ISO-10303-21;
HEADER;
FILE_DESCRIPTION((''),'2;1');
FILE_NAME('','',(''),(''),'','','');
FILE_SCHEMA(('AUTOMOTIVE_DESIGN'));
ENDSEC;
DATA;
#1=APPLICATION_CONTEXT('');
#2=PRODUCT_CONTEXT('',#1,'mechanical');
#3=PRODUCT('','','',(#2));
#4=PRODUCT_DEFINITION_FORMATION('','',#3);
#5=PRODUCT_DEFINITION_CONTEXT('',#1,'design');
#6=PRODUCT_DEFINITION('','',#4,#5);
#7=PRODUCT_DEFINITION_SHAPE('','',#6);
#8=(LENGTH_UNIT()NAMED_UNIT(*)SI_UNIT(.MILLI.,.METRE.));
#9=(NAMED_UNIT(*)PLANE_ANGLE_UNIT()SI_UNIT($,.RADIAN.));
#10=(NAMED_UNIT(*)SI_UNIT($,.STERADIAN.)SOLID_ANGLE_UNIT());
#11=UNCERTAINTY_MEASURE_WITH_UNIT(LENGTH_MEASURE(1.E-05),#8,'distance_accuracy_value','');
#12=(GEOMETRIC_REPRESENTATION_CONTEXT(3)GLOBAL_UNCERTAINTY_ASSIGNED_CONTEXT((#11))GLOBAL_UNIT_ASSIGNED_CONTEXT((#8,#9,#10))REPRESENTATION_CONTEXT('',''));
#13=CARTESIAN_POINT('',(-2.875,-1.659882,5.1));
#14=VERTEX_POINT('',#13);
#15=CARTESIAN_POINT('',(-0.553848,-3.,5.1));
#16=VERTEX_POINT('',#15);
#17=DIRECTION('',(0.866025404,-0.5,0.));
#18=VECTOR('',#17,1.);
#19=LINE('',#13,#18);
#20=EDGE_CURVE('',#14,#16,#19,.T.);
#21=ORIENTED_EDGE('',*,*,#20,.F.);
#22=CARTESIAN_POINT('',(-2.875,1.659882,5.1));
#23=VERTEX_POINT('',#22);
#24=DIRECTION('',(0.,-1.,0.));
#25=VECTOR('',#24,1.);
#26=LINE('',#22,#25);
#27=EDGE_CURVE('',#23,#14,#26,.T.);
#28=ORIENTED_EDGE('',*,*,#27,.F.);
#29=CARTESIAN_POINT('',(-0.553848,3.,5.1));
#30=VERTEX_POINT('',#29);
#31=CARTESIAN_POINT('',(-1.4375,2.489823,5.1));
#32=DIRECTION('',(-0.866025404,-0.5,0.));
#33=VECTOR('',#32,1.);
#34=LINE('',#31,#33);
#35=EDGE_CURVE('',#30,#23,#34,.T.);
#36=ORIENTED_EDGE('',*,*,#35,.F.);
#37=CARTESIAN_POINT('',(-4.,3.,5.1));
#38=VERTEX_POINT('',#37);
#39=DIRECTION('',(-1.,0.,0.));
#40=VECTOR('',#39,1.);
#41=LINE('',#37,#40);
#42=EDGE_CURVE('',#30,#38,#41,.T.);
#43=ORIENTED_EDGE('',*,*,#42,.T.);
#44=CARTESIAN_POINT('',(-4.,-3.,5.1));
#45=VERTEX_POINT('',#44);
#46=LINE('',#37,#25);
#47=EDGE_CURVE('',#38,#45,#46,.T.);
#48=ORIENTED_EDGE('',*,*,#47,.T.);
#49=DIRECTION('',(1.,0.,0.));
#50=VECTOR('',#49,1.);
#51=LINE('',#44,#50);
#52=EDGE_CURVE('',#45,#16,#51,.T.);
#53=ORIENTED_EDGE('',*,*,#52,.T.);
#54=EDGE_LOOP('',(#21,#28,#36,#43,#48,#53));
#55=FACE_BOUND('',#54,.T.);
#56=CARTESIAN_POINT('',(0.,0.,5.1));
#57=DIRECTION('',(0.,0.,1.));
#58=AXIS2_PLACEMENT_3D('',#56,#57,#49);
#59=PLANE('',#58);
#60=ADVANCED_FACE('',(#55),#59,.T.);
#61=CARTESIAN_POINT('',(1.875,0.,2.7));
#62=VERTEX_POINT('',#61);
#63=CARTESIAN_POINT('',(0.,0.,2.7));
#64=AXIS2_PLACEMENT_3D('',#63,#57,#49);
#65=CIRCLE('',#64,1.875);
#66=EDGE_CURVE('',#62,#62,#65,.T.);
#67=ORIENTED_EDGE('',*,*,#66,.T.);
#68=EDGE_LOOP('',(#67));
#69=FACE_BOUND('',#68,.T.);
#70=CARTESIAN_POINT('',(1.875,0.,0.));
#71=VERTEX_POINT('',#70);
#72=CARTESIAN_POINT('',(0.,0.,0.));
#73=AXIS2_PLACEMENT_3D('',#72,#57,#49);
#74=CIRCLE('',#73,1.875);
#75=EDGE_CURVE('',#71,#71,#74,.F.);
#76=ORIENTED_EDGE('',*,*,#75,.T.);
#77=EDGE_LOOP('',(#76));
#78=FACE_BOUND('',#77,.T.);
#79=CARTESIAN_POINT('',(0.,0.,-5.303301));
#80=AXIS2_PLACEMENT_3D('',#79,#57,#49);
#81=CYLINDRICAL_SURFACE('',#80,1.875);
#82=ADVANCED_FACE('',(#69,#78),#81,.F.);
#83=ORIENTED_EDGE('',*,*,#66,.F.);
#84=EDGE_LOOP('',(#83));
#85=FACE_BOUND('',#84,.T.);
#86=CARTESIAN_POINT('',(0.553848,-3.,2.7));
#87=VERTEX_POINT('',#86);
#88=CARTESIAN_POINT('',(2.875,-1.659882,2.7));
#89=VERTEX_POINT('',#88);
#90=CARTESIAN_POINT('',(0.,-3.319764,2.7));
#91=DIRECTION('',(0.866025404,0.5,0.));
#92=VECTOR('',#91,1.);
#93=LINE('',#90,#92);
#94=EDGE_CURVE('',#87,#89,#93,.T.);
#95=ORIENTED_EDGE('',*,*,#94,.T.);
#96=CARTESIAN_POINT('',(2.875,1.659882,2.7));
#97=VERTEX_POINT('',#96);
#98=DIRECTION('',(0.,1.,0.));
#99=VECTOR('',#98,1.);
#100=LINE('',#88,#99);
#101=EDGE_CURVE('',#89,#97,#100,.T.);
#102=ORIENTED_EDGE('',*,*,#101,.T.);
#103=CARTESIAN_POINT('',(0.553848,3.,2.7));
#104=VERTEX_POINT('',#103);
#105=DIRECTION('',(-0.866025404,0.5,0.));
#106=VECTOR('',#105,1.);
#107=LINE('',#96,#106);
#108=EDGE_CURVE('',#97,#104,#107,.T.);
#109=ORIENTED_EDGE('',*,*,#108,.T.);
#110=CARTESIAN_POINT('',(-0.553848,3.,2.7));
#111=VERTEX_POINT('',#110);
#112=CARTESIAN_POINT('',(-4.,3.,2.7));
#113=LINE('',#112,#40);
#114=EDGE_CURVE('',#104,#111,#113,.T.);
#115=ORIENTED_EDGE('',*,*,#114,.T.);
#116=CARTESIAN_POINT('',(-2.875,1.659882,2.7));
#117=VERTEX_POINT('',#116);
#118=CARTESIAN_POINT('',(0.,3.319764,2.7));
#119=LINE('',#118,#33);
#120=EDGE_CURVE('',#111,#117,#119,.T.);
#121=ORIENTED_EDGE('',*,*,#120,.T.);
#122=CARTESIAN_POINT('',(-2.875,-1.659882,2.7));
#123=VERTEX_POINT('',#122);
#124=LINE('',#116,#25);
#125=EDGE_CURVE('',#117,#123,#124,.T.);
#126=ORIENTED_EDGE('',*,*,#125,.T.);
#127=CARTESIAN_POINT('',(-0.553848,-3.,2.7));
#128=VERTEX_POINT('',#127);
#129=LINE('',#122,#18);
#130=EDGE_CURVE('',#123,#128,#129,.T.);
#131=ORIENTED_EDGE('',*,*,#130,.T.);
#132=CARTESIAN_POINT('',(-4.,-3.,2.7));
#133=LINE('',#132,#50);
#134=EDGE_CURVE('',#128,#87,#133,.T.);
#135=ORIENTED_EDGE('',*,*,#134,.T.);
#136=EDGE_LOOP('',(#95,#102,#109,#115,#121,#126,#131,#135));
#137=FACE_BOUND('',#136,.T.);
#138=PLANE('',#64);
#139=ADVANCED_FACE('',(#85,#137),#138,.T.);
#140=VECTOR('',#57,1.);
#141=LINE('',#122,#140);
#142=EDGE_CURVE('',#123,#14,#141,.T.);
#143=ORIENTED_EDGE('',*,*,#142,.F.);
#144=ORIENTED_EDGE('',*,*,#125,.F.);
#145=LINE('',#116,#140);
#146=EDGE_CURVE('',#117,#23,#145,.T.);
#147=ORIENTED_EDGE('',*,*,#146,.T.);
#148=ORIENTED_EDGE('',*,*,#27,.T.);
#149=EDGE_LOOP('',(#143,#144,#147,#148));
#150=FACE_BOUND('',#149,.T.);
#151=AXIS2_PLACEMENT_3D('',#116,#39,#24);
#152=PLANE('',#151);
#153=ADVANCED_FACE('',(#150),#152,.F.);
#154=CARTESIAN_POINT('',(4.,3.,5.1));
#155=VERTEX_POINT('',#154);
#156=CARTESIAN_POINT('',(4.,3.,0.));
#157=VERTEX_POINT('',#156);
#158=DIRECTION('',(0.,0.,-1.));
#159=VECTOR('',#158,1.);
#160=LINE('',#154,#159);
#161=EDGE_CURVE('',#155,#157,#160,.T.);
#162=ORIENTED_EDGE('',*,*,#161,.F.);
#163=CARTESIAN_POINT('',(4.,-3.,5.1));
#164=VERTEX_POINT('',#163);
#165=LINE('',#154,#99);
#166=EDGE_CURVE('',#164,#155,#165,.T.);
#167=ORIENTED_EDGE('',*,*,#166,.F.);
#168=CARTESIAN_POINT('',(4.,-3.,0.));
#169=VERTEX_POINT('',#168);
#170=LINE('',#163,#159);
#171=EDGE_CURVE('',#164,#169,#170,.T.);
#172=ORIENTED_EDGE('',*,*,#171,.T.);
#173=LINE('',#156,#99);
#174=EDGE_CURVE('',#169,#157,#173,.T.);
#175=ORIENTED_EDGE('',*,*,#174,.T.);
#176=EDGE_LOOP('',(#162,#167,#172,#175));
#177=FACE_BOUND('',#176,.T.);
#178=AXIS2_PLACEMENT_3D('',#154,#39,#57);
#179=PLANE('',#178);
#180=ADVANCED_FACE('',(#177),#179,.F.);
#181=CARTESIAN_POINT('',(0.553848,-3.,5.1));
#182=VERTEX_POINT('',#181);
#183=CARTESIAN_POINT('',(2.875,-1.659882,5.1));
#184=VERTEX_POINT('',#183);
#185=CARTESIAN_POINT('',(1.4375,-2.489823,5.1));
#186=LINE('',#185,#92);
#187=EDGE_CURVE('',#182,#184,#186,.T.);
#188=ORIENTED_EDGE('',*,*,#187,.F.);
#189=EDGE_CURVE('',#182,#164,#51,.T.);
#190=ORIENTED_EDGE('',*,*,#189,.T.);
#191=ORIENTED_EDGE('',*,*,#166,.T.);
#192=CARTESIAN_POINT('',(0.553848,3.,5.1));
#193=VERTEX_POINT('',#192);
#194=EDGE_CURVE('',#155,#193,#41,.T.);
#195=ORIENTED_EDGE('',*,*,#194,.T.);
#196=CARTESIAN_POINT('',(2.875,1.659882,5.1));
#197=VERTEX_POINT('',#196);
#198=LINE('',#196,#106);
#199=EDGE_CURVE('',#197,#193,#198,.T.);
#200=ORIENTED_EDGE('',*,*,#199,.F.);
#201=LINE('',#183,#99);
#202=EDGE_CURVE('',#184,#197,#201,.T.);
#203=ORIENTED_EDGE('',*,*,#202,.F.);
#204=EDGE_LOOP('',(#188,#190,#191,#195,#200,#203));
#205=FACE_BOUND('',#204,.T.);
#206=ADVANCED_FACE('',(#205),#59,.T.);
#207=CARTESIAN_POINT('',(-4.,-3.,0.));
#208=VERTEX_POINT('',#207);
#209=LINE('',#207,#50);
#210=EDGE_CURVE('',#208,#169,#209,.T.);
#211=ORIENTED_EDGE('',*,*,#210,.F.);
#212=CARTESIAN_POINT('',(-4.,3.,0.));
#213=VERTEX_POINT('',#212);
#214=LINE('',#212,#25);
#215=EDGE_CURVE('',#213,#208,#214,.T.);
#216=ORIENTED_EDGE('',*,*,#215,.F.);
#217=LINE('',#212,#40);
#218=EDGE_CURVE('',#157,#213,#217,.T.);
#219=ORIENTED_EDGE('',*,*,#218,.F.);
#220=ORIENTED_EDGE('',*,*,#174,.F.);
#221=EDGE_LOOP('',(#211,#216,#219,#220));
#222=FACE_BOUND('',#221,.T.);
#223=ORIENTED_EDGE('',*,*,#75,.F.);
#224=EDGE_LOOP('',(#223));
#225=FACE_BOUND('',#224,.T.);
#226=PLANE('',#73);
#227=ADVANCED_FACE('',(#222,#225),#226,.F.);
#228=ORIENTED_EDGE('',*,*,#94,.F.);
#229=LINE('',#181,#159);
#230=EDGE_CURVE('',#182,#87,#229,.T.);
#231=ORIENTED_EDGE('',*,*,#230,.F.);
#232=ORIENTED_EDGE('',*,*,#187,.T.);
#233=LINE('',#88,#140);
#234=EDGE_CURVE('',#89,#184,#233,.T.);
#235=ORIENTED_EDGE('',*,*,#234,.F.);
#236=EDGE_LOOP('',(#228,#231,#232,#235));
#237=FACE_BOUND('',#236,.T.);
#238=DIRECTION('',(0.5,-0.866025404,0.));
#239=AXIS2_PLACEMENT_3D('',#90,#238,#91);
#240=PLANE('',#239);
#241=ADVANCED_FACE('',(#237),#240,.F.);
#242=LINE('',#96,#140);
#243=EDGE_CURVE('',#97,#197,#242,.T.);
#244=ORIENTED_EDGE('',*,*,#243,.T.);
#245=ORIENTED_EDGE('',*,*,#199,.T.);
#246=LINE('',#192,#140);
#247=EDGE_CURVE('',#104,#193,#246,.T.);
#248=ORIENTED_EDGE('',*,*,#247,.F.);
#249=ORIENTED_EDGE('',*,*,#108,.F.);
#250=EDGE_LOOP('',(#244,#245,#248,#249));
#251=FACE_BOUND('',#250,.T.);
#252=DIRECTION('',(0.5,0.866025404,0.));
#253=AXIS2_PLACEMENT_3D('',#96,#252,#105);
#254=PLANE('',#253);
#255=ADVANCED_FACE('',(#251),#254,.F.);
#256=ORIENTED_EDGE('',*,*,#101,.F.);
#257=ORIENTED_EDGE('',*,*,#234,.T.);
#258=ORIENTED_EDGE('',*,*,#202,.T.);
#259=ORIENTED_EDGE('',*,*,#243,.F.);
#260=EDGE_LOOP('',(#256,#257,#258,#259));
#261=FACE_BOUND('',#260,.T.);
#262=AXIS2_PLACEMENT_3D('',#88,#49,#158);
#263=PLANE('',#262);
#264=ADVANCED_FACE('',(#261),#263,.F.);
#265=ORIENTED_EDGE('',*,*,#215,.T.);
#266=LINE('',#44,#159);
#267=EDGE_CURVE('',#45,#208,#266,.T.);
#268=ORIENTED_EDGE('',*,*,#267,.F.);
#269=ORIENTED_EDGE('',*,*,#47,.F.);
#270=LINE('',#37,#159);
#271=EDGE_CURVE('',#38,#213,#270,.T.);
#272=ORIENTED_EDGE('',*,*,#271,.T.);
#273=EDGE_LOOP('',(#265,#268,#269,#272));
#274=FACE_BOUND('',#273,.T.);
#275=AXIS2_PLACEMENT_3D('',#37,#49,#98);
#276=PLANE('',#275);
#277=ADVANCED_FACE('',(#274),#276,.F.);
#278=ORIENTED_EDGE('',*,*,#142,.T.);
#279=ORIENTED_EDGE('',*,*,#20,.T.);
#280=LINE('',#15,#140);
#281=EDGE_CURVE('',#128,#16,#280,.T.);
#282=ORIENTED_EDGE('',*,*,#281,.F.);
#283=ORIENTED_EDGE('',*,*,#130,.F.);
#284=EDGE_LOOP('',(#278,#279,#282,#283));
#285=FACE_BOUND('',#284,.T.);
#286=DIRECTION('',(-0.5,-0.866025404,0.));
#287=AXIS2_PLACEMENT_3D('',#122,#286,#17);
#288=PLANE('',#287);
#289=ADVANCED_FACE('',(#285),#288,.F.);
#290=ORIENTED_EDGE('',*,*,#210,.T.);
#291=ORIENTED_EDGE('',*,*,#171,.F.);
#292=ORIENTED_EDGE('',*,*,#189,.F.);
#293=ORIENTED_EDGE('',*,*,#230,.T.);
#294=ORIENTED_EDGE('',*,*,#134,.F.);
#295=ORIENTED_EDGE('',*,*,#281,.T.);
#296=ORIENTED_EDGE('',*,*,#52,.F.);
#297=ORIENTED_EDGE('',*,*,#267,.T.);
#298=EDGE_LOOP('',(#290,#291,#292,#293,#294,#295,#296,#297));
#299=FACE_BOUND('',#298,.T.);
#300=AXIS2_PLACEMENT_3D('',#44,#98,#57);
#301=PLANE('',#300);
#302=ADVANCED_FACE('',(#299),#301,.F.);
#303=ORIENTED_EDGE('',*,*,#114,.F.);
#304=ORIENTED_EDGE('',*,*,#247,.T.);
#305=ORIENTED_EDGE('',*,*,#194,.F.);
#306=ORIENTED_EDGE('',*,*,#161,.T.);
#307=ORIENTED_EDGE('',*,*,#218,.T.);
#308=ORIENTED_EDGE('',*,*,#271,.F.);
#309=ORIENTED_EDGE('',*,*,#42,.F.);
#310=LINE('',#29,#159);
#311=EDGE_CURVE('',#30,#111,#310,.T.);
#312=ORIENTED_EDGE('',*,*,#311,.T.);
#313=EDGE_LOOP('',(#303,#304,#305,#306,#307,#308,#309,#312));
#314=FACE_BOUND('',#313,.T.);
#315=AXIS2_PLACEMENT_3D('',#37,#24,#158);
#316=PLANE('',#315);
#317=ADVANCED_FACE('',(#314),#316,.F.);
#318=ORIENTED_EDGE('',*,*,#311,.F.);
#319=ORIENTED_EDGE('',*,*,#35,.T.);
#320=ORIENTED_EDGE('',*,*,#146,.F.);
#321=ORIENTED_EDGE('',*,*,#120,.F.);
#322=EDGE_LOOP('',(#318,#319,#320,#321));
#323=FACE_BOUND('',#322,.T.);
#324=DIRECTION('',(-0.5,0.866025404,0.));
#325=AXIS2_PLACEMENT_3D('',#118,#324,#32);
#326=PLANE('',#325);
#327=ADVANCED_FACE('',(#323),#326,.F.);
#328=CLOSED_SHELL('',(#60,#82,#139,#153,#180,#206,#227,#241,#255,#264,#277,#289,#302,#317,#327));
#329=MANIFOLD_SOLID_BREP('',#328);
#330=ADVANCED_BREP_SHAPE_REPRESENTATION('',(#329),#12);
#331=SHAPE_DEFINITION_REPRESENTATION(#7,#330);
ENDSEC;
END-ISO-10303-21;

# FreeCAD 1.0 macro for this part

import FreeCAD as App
import Part
import Sketcher
Q = App.Units.Quantity


def add_polygon(sketch, points):
    """Adds a closed chain of lines whose ends are joined by coincident constraints."""
    first, n = sketch.GeometryCount, len(points)
    for a, b in zip(points, points[1:] + points[:1]):
        sketch.addGeometry(Part.LineSegment(App.Vector(*a, 0), App.Vector(*b, 0)), False)
    for i in range(n):
        sketch.addConstraint(Sketcher.Constraint("Coincident", first + i, 2, first + (i + 1) % n, 1))

doc = App.newDocument("Part")
params = doc.addObject("Spreadsheet::Sheet", "Params")
for row, (alias, value) in enumerate([
    ("sketch1_width", "8 mm"),
    ("sketch1_height", "6 mm"),
    ("pad1_length", "5.1 mm"),
    ("pocket1_length", "2.4 mm"),
    ("sketch3_diameter", "3.75 mm"),
    ("pocket2_length", "2.7 mm"),
], start=1):
    params.set(f"A{row}", alias)
    params.set(f"B{row}", "=" + value)
    params.setAlias(f"B{row}", alias)

body = doc.addObject("PartDesign::Body", "Body")

# Sketch on XY plane
sketch1 = body.newObject("Sketcher::SketchObject", "Sketch")
sketch1.AttachmentSupport = (doc.getObject("XY_Plane"), [""])
sketch1.MapMode = "FlatFace"
add_polygon(sketch1, [(-4, 3), (-4, -3), (4, -3), (4, 3)])  # lines 0-3
sketch1.addConstraint(Sketcher.Constraint("Vertical", 0))
sketch1.addConstraint(Sketcher.Constraint("Horizontal", 1))
sketch1.addConstraint(Sketcher.Constraint("Vertical", 2))
sketch1.addConstraint(Sketcher.Constraint("Horizontal", 3))
sketch1.addConstraint(Sketcher.Constraint("Symmetric", 0, 2, 2, 2, -1, 1))
sketch1.addConstraint(Sketcher.Constraint("DistanceX", 1, 1, 1, 2, Q("8 mm")))
sketch1.addConstraint(Sketcher.Constraint("DistanceY", 0, 2, 0, 1, Q("6 mm")))
sketch1.setExpression("Constraints[9]", "Params.sketch1_width")
sketch1.setExpression("Constraints[10]", "Params.sketch1_height")
pad1 = body.newObject("PartDesign::Pad", "Pad")
pad1.Profile = sketch1
pad1.setExpression("Length", "Params.pad1_length")

# Sketch on XY plane
sketch2 = body.newObject("Sketcher::SketchObject", "Sketch001")
sketch2.AttachmentSupport = (doc.getObject("XY_Plane"), [""])
sketch2.MapMode = "FlatFace"
sketch2.AttachmentOffset = App.Placement(App.Vector(0, 0, 5.1), App.Rotation())
add_polygon(sketch2, [(0, -3.319764), (2.875, -1.659882), (2.875, 1.659882), (0, 3.319764), (-2.875, 1.659882), (-2.875, -1.659882)])  # lines 0-5
sketch2.addConstraint(Sketcher.Constraint("Vertical", 1))
sketch2.addConstraint(Sketcher.Constraint("Vertical", 4))
sketch2.addConstraint(Sketcher.Constraint("Symmetric", 0, 2, 3, 2, -1, 1))
sketch2.addConstraint(Sketcher.Constraint("Symmetric", 2, 2, 5, 2, -1, 1))
sketch2.addConstraint(Sketcher.Constraint("PointOnObject", 2, 2, -2))
sketch2.addConstraint(Sketcher.Constraint("Parallel", 2, 5))
sketch2.addConstraint(Sketcher.Constraint("Horizontal", 1, 2, 3, 2))
sketch2.addConstraint(Sketcher.Constraint("Angle", 0, Q("30 deg")))
sketch2.addConstraint(Sketcher.Constraint("DistanceX", 3, 2, 1, 2, Q("5.75 mm")))
sketch2.addConstraint(Sketcher.Constraint("DistanceY", 1, 1, 1, 2, Q("3.319764 mm")))
pocket1 = body.newObject("PartDesign::Pocket", "Pocket")
pocket1.Profile = sketch2
pocket1.setExpression("Length", "Params.pocket1_length")

# Sketch on XY plane
sketch3 = body.newObject("Sketcher::SketchObject", "Sketch002")
sketch3.AttachmentSupport = (doc.getObject("XY_Plane"), [""])
sketch3.MapMode = "FlatFace"
sketch3.AttachmentOffset = App.Placement(App.Vector(0, 0, 2.7), App.Rotation())
sketch3.addGeometry(Part.Circle(App.Vector(0, 0, 0), App.Vector(0, 0, 1), 1.875), False)
sketch3.addConstraint(Sketcher.Constraint("Coincident", 0, 3, -1, 1))
sketch3.addConstraint(Sketcher.Constraint("Diameter", 0, Q("3.75 mm")))
sketch3.setExpression("Constraints[1]", "Params.sketch3_diameter")
pocket2 = body.newObject("PartDesign::Pocket", "Pocket001")
pocket2.Profile = sketch3
pocket2.setExpression("Length", "Params.pocket2_length")

doc.recompute()
